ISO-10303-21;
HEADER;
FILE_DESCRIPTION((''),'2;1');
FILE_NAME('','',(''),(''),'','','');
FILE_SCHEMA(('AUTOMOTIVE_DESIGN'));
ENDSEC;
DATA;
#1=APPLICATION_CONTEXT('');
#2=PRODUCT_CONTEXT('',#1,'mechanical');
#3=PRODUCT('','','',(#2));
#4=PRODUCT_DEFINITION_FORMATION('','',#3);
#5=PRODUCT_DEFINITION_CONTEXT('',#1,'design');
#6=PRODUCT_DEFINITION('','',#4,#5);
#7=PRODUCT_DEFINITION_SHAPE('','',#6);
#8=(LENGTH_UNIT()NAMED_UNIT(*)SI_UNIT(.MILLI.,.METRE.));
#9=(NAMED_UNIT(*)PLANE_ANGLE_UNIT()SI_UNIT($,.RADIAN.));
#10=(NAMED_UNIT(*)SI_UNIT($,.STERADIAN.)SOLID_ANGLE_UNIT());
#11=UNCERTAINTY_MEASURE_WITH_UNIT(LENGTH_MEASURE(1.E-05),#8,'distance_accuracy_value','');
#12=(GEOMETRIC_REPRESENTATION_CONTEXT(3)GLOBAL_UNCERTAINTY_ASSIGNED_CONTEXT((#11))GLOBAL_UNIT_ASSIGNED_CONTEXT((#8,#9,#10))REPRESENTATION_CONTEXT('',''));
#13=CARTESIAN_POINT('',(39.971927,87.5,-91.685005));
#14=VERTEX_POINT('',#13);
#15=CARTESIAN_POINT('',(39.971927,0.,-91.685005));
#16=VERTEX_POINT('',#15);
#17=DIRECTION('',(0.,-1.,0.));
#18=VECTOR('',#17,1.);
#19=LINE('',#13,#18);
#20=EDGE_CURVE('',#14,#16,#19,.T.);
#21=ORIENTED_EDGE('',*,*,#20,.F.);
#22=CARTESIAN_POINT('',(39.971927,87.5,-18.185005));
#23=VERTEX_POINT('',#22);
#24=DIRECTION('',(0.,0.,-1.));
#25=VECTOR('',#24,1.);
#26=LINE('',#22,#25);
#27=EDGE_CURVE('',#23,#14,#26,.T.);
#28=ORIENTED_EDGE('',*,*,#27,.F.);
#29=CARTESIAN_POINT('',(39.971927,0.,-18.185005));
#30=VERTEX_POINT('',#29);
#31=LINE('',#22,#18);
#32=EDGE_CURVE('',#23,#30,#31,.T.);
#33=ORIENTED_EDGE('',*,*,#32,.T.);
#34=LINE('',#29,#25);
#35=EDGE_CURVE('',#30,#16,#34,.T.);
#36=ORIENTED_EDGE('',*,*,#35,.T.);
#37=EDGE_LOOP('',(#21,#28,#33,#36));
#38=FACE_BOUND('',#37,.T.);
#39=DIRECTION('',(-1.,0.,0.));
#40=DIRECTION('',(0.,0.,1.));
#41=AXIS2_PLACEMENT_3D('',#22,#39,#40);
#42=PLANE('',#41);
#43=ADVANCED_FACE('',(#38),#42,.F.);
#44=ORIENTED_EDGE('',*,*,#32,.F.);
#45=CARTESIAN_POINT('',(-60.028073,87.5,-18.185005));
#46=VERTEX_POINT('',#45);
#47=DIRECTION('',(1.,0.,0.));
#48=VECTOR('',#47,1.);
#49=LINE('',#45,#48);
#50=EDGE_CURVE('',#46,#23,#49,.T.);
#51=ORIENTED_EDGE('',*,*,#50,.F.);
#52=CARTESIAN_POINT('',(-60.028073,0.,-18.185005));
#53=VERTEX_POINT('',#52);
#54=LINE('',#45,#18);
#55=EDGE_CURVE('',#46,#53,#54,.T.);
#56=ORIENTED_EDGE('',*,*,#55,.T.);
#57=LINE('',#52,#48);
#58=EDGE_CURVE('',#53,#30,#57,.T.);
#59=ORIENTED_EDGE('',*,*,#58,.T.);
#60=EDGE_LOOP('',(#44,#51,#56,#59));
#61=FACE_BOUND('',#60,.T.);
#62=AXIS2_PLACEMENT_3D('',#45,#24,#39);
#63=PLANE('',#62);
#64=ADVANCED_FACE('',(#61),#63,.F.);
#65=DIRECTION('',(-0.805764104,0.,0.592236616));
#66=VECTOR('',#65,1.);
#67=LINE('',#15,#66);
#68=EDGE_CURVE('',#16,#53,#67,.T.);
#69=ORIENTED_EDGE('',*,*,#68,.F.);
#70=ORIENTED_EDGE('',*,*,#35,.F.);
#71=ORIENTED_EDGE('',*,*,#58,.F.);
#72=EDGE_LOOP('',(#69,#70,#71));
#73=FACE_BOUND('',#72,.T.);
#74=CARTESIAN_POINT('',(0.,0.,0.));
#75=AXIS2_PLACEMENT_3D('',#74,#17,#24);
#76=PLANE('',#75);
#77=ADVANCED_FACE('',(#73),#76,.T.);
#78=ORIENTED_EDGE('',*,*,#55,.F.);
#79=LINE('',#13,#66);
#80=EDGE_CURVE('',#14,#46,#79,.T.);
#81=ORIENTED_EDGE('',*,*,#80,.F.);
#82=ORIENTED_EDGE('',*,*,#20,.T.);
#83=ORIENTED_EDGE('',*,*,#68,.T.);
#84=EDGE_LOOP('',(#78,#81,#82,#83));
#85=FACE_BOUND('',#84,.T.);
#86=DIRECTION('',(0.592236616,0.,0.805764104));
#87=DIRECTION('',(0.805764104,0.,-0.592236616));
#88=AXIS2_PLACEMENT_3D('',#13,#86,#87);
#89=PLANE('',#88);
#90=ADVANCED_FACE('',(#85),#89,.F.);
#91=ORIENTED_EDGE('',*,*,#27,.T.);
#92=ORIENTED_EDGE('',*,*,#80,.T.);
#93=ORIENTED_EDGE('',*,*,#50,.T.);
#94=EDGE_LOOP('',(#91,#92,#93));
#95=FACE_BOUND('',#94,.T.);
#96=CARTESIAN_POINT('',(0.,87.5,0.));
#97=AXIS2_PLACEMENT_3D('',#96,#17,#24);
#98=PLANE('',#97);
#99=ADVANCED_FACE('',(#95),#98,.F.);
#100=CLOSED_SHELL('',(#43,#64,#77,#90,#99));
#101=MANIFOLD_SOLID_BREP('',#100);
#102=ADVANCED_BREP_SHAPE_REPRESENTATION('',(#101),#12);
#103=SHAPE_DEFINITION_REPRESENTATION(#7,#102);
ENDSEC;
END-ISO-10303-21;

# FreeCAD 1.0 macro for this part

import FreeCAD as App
import Part
import Sketcher

V = App.Vector
Q = App.Units.Quantity


def add_polygon(sketch, points):
    """Adds a closed chain of lines whose ends are joined by coincident constraints."""
    first, n = sketch.GeometryCount, len(points)
    for a, b in zip(points, points[1:] + points[:1]):
        sketch.addGeometry(Part.LineSegment(App.Vector(*a, 0), App.Vector(*b, 0)), False)
    for i in range(n):
        sketch.addConstraint(Sketcher.Constraint("Coincident", first + i, 2, first + (i + 1) % n, 1))

doc = App.newDocument("Part")
body = doc.addObject("PartDesign::Body", "Body")

# Sketch on XZ plane
sketch1 = doc.addObject("Sketcher::SketchObject", "Sketch")
body.addObject(sketch1)
sketch1.AttachmentSupport = (doc.XZ_Plane, [""])
sketch1.MapMode = "FlatFace"
add_polygon(sketch1, [(-60, -18), (40, -18), (40, -92)])  # lines 0-2
sketch1.addConstraint([
    Sketcher.Constraint("Horizontal", 0),
    Sketcher.Constraint("Vertical", 1),
    Sketcher.Constraint("DistanceX", 0, 1, 0, 2, Q("100 mm")),
    Sketcher.Constraint("DistanceY", 1, 2, 1, 1, Q("73.5 mm")),
    Sketcher.Constraint("DistanceX", -1, 1, 0, 2, Q("39.971927 mm")),
    Sketcher.Constraint("DistanceY", 0, 2, -1, 1, Q("18.185005 mm")),
])
pad1 = doc.addObject("PartDesign::Pad", "Pad")
body.addObject(pad1)
pad1.Profile = sketch1
pad1.Length = 87.5
pad1.Reversed = True

doc.recompute()
